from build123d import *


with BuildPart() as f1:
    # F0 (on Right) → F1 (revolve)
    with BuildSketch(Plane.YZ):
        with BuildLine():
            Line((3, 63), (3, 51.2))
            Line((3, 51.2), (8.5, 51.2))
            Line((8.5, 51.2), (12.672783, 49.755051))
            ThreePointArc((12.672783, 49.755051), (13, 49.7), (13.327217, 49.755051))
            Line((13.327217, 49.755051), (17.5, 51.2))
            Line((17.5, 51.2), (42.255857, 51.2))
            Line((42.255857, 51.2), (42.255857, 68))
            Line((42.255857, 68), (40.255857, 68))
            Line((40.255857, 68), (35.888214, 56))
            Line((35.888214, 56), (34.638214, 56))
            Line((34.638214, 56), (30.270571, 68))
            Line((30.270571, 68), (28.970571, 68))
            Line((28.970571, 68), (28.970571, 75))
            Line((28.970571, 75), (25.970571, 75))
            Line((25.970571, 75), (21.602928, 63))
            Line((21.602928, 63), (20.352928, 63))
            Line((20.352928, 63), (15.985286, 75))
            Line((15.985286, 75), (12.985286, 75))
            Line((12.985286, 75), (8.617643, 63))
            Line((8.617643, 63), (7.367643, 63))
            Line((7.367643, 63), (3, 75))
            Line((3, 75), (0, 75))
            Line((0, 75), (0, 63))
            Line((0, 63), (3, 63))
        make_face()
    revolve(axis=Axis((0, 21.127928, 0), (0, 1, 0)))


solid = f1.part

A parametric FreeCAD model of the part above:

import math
import FreeCAD as App
import Part
import Sketcher
Q = App.Units.Quantity

doc = App.newDocument("Part")
body = doc.addObject("PartDesign::Body", "Body")

sketch1 = body.newObject("Sketcher::SketchObject", "Sketch")
sketch1.AttachmentSupport = (doc.getObject("YZ_Plane"), [""])
sketch1.MapMode = "FlatFace"
sketch1.addGeometry(Part.LineSegment(App.Vector(3, 63, 0), App.Vector(3, 51.2, 0)), False)
sketch1.addGeometry(Part.LineSegment(App.Vector(3, 51.2, 0), App.Vector(8.5, 51.2, 0)), False)
sketch1.addGeometry(Part.LineSegment(App.Vector(8.5, 51.2, 0), App.Vector(12.7, 49.8, 0)), False)
sketch1.addGeometry(Part.ArcOfCircle(Part.Circle(App.Vector(13, 50.7, 0), App.Vector(0, 0, 1), 1), math.radians(-109), math.radians(-71)), False)
sketch1.addGeometry(Part.LineSegment(App.Vector(13.3, 49.8, 0), App.Vector(17.5, 51.2, 0)), False)
sketch1.addGeometry(Part.LineSegment(App.Vector(17.5, 51.2, 0), App.Vector(42.3, 51.2, 0)), False)
sketch1.addGeometry(Part.LineSegment(App.Vector(42.3, 51.2, 0), App.Vector(42.3, 68, 0)), False)
sketch1.addGeometry(Part.LineSegment(App.Vector(42.3, 68, 0), App.Vector(40.3, 68, 0)), False)
sketch1.addGeometry(Part.LineSegment(App.Vector(40.3, 68, 0), App.Vector(35.9, 56, 0)), False)
sketch1.addGeometry(Part.LineSegment(App.Vector(35.9, 56, 0), App.Vector(34.6, 56, 0)), False)
sketch1.addGeometry(Part.LineSegment(App.Vector(34.6, 56, 0), App.Vector(30.3, 68, 0)), False)
sketch1.addGeometry(Part.LineSegment(App.Vector(30.3, 68, 0), App.Vector(29, 68, 0)), False)
sketch1.addGeometry(Part.LineSegment(App.Vector(29, 68, 0), App.Vector(29, 75, 0)), False)
sketch1.addGeometry(Part.LineSegment(App.Vector(29, 75, 0), App.Vector(26, 75, 0)), False)
sketch1.addGeometry(Part.LineSegment(App.Vector(26, 75, 0), App.Vector(21.6, 63, 0)), False)
sketch1.addGeometry(Part.LineSegment(App.Vector(21.6, 63, 0), App.Vector(20.4, 63, 0)), False)
sketch1.addGeometry(Part.LineSegment(App.Vector(20.4, 63, 0), App.Vector(16, 75, 0)), False)
sketch1.addGeometry(Part.LineSegment(App.Vector(16, 75, 0), App.Vector(13, 75, 0)), False)
sketch1.addGeometry(Part.LineSegment(App.Vector(13, 75, 0), App.Vector(8.6, 63, 0)), False)
sketch1.addGeometry(Part.LineSegment(App.Vector(8.6, 63, 0), App.Vector(7.4, 63, 0)), False)
sketch1.addGeometry(Part.LineSegment(App.Vector(7.4, 63, 0), App.Vector(3, 75, 0)), False)
sketch1.addGeometry(Part.LineSegment(App.Vector(3, 75, 0), App.Vector(0, 75, 0)), False)
sketch1.addGeometry(Part.LineSegment(App.Vector(0, 75, 0), App.Vector(0, 63, 0)), False)
sketch1.addGeometry(Part.LineSegment(App.Vector(0, 63, 0), App.Vector(3, 63, 0)), False)
sketch1.addConstraint(Sketcher.Constraint("Coincident", 0, 2, 1, 1))
sketch1.addConstraint(Sketcher.Constraint("Coincident", 1, 2, 2, 1))
sketch1.addConstraint(Sketcher.Constraint("Tangent", 2, 2, 3, 1))
sketch1.addConstraint(Sketcher.Constraint("Tangent", 3, 2, 4, 1))
sketch1.addConstraint(Sketcher.Constraint("Coincident", 4, 2, 5, 1))
sketch1.addConstraint(Sketcher.Constraint("Coincident", 5, 2, 6, 1))
sketch1.addConstraint(Sketcher.Constraint("Coincident", 6, 2, 7, 1))
sketch1.addConstraint(Sketcher.Constraint("Coincident", 7, 2, 8, 1))
sketch1.addConstraint(Sketcher.Constraint("Coincident", 8, 2, 9, 1))
sketch1.addConstraint(Sketcher.Constraint("Coincident", 9, 2, 10, 1))
sketch1.addConstraint(Sketcher.Constraint("Coincident", 10, 2, 11, 1))
sketch1.addConstraint(Sketcher.Constraint("Coincident", 11, 2, 12, 1))
sketch1.addConstraint(Sketcher.Constraint("Coincident", 12, 2, 13, 1))
sketch1.addConstraint(Sketcher.Constraint("Coincident", 13, 2, 14, 1))
sketch1.addConstraint(Sketcher.Constraint("Coincident", 14, 2, 15, 1))
sketch1.addConstraint(Sketcher.Constraint("Coincident", 15, 2, 16, 1))
sketch1.addConstraint(Sketcher.Constraint("Coincident", 16, 2, 17, 1))
sketch1.addConstraint(Sketcher.Constraint("Coincident", 17, 2, 18, 1))
sketch1.addConstraint(Sketcher.Constraint("Coincident", 18, 2, 19, 1))
sketch1.addConstraint(Sketcher.Constraint("Coincident", 19, 2, 20, 1))
sketch1.addConstraint(Sketcher.Constraint("Coincident", 20, 2, 21, 1))
sketch1.addConstraint(Sketcher.Constraint("Coincident", 21, 2, 22, 1))
sketch1.addConstraint(Sketcher.Constraint("Coincident", 22, 2, 23, 1))
sketch1.addConstraint(Sketcher.Constraint("Coincident", 23, 2, 0, 1))
sketch1.addConstraint(Sketcher.Constraint("Vertical", 0))
sketch1.addConstraint(Sketcher.Constraint("Horizontal", 1))
sketch1.addConstraint(Sketcher.Constraint("Horizontal", 5))
sketch1.addConstraint(Sketcher.Constraint("Vertical", 6))
sketch1.addConstraint(Sketcher.Constraint("Horizontal", 7))
sketch1.addConstraint(Sketcher.Constraint("Horizontal", 9))
sketch1.addConstraint(Sketcher.Constraint("Horizontal", 11))
sketch1.addConstraint(Sketcher.Constraint("Vertical", 12))
sketch1.addConstraint(Sketcher.Constraint("Horizontal", 13))
sketch1.addConstraint(Sketcher.Constraint("Horizontal", 15))
sketch1.addConstraint(Sketcher.Constraint("Horizontal", 17))
sketch1.addConstraint(Sketcher.Constraint("Horizontal", 19))
sketch1.addConstraint(Sketcher.Constraint("Horizontal", 21))
sketch1.addConstraint(Sketcher.Constraint("Vertical", 22))
sketch1.addConstraint(Sketcher.Constraint("Horizontal", 23))
sketch1.addConstraint(Sketcher.Constraint("PointOnObject", 21, 2, -2))
sketch1.addConstraint(Sketcher.Constraint("Parallel", 8, 14))
sketch1.addConstraint(Sketcher.Constraint("Parallel", 10, 16))
sketch1.addConstraint(Sketcher.Constraint("Parallel", 14, 18))
sketch1.addConstraint(Sketcher.Constraint("Parallel", 16, 20))
sketch1.addConstraint(Sketcher.Constraint("Horizontal", 2, 2, 3, 2))
sketch1.addConstraint(Sketcher.Constraint("Horizontal", 1, 2, 4, 2))
sketch1.addConstraint(Sketcher.Constraint("Horizontal", 7, 2, 10, 2))
sketch1.addConstraint(Sketcher.Constraint("Horizontal", 13, 2, 16, 2))
sketch1.addConstraint(Sketcher.Constraint("Horizontal", 15, 2, 18, 2))
sketch1.addConstraint(Sketcher.Constraint("Horizontal", 17, 2, 20, 2))
sketch1.addConstraint(Sketcher.Constraint("Horizontal", 19, 2, 22, 2))
sketch1.addConstraint(Sketcher.Constraint("Vertical", 0, 2, 20, 2))
sketch1.addConstraint(Sketcher.Constraint("Equal", 9, 15))
sketch1.addConstraint(Sketcher.Constraint("Equal", 13, 17))
sketch1.addConstraint(Sketcher.Constraint("Equal", 15, 19))
sketch1.addConstraint(Sketcher.Constraint("Equal", 17, 21))
sketch1.addConstraint(Sketcher.Constraint("Equal", 8, 10))
sketch1.addConstraint(Sketcher.Constraint("Equal", 10, 14))
sketch1.addConstraint(Sketcher.Constraint("DistanceX", 7, 2, 7, 1, Q("2 mm")))
sketch1.addConstraint(Sketcher.Constraint("DistanceX", 13, 2, 13, 1, Q("3 mm")))
sketch1.addConstraint(Sketcher.Constraint("DistanceY", 12, 1, 12, 2, Q("7 mm")))
sketch1.addConstraint(Sketcher.Constraint("DistanceY", 22, 2, 22, 1, Q("12 mm")))
sketch1.addConstraint(Sketcher.Constraint("Angle", 8, Q("-110.000001 deg")))
sketch1.addConstraint(Sketcher.Constraint("DistanceX", 1, 1, 1, 2, Q("5.5 mm")))
sketch1.addConstraint(Sketcher.Constraint("DistanceX", 11, 2, 11, 1, Q("1.3 mm")))
sketch1.addConstraint(Sketcher.Constraint("DistanceY", 0, 2, 0, 1, Q("11.8 mm")))
sketch1.addConstraint(Sketcher.Constraint("DistanceX", -1, 1, 3, 3, Q("13 mm")))
sketch1.addConstraint(Sketcher.Constraint("DistanceY", -1, 1, 6, 2, Q("68 mm")))
sketch1.addConstraint(Sketcher.Constraint("DistanceX", 9, 2, 9, 1, Q("1.25 mm")))
sketch1.addConstraint(Sketcher.Constraint("Radius", 3, Q("0.999996 mm")))
sketch1.addConstraint(Sketcher.Constraint("Distance", 2, Q("4.41588 mm")))
revolution = body.newObject("PartDesign::Revolution", "Revolution")
revolution.Profile = sketch1
revolution.ReferenceAxis = (sketch1, ["H_Axis"])
revolution.Angle = 360

doc.recompute()
